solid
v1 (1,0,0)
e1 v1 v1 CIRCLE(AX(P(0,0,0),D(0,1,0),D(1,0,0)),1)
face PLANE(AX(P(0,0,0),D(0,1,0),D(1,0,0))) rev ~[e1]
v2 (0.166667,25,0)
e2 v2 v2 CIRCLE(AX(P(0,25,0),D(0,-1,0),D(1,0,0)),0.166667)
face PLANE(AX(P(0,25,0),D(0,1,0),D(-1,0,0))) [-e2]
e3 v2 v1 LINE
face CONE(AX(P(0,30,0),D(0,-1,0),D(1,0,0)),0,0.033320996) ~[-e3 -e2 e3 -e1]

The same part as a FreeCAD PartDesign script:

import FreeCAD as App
import Part
import Sketcher
from FreeCAD import Vector
Q = App.Units.Quantity

doc = App.newDocument("Part")
body = doc.addObject("PartDesign::Body", "Body")

sketch1 = body.newObject("Sketcher::SketchObject", "Sketch")
sketch1.AttachmentSupport = (doc.getObject("XY_Plane"), [""])
sketch1.MapMode = "FlatFace"
sketch1.addGeometry([
    Part.LineSegment(Vector(0, 30, 0), Vector(0, 0, 0)),
    Part.LineSegment(Vector(0, 0, 0), Vector(1, 0, 0)),
    Part.LineSegment(Vector(1, 0, 0), Vector(0, 30, 0)),
], False)
sketch1.addConstraint([
    Sketcher.Constraint("Coincident", 0, 2, 1, 1),
    Sketcher.Constraint("Coincident", 1, 2, 2, 1),
    Sketcher.Constraint("Coincident", 2, 2, 0, 1),
    Sketcher.Constraint("Vertical", 0),
    Sketcher.Constraint("Horizontal", 1),
    Sketcher.Constraint("Coincident", 0, 2, -1, 1),
    Sketcher.Constraint("DistanceX", 1, 1, 1, 2, Q("1 mm")),
    Sketcher.Constraint("DistanceY", 0, 2, 0, 1, Q("30 mm")),
])
revolution = body.newObject("PartDesign::Revolution", "Revolution")
revolution.Profile = sketch1
revolution.ReferenceAxis = (sketch1, ["V_Axis"])
revolution.Angle = 360

sketch2 = body.newObject("Sketcher::SketchObject", "Sketch001")
sketch2.AttachmentSupport = (doc.getObject("XZ_Plane"), [""])
sketch2.MapMode = "FlatFace"
sketch2.AttachmentOffset = App.Placement(Vector(0, 0, -30), App.Rotation())
sketch2.addGeometry(Part.Circle(Vector(0, 0, 0), Vector(0, 0, 1), 2.8), False)
sketch2.addConstraint([
    Sketcher.Constraint("Coincident", 0, 3, -1, 1),
    Sketcher.Constraint("Diameter", 0, Q("5.622 mm")),
])
pocket1 = body.newObject("PartDesign::Pocket", "Pocket")
pocket1.Profile = sketch2
pocket1.Length = 5
pocket1.Reversed = True

doc.recompute()
